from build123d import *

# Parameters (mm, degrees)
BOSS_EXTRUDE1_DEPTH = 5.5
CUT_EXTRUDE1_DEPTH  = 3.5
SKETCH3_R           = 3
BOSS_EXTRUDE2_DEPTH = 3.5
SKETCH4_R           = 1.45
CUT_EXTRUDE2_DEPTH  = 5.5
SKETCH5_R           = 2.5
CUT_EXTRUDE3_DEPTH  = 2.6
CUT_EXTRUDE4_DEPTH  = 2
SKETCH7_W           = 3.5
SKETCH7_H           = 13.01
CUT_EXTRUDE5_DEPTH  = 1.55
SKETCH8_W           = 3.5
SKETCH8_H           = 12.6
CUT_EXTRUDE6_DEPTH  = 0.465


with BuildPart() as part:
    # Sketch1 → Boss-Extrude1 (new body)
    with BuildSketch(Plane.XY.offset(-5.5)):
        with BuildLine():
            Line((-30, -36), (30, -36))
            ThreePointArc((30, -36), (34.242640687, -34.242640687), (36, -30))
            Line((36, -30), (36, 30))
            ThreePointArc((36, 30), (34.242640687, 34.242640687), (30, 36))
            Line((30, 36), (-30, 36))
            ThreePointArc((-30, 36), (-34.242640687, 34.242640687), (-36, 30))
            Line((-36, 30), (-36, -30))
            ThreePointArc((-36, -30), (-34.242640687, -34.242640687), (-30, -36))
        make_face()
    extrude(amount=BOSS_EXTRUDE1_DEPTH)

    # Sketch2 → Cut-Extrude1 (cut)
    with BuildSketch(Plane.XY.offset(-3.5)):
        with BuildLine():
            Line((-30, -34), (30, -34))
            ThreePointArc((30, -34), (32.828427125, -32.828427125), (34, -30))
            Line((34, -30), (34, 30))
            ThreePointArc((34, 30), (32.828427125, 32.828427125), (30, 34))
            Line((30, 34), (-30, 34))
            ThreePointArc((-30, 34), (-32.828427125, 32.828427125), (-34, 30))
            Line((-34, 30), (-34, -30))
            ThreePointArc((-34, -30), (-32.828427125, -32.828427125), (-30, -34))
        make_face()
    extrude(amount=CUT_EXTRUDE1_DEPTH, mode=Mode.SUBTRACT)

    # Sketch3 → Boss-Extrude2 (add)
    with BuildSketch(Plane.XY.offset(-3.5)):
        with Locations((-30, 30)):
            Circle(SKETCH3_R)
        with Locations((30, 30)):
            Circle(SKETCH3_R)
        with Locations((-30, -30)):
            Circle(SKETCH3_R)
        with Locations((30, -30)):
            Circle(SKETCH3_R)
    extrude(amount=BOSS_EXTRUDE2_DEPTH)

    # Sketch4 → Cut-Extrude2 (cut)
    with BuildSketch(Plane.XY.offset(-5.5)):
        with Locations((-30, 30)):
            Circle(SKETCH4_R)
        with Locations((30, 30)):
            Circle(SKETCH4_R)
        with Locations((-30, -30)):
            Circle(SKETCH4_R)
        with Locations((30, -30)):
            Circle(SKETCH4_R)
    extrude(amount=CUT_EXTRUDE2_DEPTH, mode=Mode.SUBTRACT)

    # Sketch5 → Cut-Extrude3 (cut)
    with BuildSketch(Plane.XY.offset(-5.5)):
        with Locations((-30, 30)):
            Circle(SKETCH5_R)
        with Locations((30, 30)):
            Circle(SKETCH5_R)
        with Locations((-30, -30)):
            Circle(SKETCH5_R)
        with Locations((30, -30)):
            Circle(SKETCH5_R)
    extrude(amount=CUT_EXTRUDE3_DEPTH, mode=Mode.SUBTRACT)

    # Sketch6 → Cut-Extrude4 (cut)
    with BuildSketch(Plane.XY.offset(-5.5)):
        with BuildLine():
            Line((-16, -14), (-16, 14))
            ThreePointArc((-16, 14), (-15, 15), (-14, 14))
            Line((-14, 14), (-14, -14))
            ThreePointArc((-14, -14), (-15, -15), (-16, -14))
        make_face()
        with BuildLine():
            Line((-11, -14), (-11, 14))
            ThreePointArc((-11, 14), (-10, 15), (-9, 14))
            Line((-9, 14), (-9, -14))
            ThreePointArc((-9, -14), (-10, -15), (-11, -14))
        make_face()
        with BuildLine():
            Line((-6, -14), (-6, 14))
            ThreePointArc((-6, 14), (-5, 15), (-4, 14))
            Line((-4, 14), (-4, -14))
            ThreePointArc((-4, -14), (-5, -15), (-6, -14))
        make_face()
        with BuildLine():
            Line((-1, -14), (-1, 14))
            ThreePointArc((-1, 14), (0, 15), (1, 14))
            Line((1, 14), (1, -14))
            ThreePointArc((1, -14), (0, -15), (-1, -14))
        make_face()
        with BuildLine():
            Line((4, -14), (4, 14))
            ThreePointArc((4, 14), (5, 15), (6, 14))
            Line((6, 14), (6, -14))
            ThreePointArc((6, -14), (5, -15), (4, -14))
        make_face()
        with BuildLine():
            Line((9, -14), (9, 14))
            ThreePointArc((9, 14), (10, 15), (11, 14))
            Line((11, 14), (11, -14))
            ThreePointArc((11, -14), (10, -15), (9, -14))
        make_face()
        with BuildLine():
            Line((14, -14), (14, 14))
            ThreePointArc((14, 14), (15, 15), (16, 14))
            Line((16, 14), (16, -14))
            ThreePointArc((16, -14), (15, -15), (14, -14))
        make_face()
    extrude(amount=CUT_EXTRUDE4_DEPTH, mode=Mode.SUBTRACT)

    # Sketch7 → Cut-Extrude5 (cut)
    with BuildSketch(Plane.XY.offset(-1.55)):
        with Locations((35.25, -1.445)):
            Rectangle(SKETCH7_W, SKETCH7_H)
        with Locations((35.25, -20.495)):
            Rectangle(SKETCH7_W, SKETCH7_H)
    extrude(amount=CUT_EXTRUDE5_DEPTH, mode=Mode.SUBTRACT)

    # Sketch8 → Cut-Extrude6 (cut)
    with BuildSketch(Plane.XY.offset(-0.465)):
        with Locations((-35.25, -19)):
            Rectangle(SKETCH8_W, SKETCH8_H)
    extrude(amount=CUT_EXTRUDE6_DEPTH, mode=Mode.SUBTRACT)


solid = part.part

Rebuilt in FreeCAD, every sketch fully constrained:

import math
import FreeCAD as App
import Part
import Sketcher
from FreeCAD import Vector
Q = App.Units.Quantity


def add_polygon(sketch, points):
    """Adds a closed chain of lines whose ends are joined by coincident constraints."""
    first, n = sketch.GeometryCount, len(points)
    for a, b in zip(points, points[1:] + points[:1]):
        sketch.addGeometry(Part.LineSegment(App.Vector(*a, 0), App.Vector(*b, 0)), False)
    for i in range(n):
        sketch.addConstraint(Sketcher.Constraint("Coincident", first + i, 2, first + (i + 1) % n, 1))

doc = App.newDocument("Part")
body = doc.addObject("PartDesign::Body", "Body")

sketch1 = body.newObject("Sketcher::SketchObject", "Sketch")
sketch1.AttachmentSupport = (doc.getObject("XY_Plane"), [""])
sketch1.MapMode = "FlatFace"
sketch1.AttachmentOffset = App.Placement(Vector(0, 0, -5.5), App.Rotation())
sketch1.addGeometry(Part.LineSegment(Vector(-30, -36, 0), Vector(30, -36, 0)), False)
sketch1.addGeometry(Part.ArcOfCircle(Part.Circle(Vector(30, -30, 0), Vector(0, 0, 1), 6), math.radians(-90), math.radians(0)), False)
sketch1.addGeometry(Part.LineSegment(Vector(36, -30, 0), Vector(36, 30, 0)), False)
sketch1.addGeometry(Part.ArcOfCircle(Part.Circle(Vector(30, 30, 0), Vector(0, 0, 1), 6), math.radians(0), math.radians(90)), False)
sketch1.addGeometry(Part.LineSegment(Vector(30, 36, 0), Vector(-30, 36, 0)), False)
sketch1.addGeometry(Part.ArcOfCircle(Part.Circle(Vector(-30, 30, 0), Vector(0, 0, 1), 6), math.radians(90), math.radians(180)), False)
sketch1.addGeometry(Part.LineSegment(Vector(-36, 30, 0), Vector(-36, -30, 0)), False)
sketch1.addGeometry(Part.ArcOfCircle(Part.Circle(Vector(-30, -30, 0), Vector(0, 0, 1), 6), math.radians(180), math.radians(270)), False)
sketch1.addConstraint(Sketcher.Constraint("Tangent", 0, 2, 1, 1))
sketch1.addConstraint(Sketcher.Constraint("Tangent", 1, 2, 2, 1))
sketch1.addConstraint(Sketcher.Constraint("Tangent", 2, 2, 3, 1))
sketch1.addConstraint(Sketcher.Constraint("Tangent", 3, 2, 4, 1))
sketch1.addConstraint(Sketcher.Constraint("Tangent", 4, 2, 5, 1))
sketch1.addConstraint(Sketcher.Constraint("Tangent", 5, 2, 6, 1))
sketch1.addConstraint(Sketcher.Constraint("Tangent", 6, 2, 7, 1))
sketch1.addConstraint(Sketcher.Constraint("Tangent", 7, 2, 0, 1))
sketch1.addConstraint(Sketcher.Constraint("Horizontal", 0))
sketch1.addConstraint(Sketcher.Constraint("Vertical", 2))
sketch1.addConstraint(Sketcher.Constraint("Horizontal", 4))
sketch1.addConstraint(Sketcher.Constraint("Vertical", 6))
sketch1.addConstraint(Sketcher.Constraint("Equal", 1, 3))
sketch1.addConstraint(Sketcher.Constraint("Equal", 3, 5))
sketch1.addConstraint(Sketcher.Constraint("Equal", 5, 7))
sketch1.addConstraint(Sketcher.Constraint("Symmetric", 1, 3, 5, 3, -1, 1))
sketch1.addConstraint(Sketcher.Constraint("Equal", 4, 2))
sketch1.addConstraint(Sketcher.Constraint("Radius", 1, Q("6 mm")))
sketch1.addConstraint(Sketcher.Constraint("DistanceX", 0, 1, 0, 2, Q("60 mm")))
pad1 = body.newObject("PartDesign::Pad", "Pad")
pad1.Profile = sketch1
pad1.Length = 5.5

sketch2 = body.newObject("Sketcher::SketchObject", "Sketch001")
sketch2.AttachmentSupport = (doc.getObject("XY_Plane"), [""])
sketch2.MapMode = "FlatFace"
sketch2.AttachmentOffset = App.Placement(Vector(0, 0, -3.5), App.Rotation())
sketch2.addGeometry(Part.LineSegment(Vector(-30, -34, 0), Vector(30, -34, 0)), False)
sketch2.addGeometry(Part.ArcOfCircle(Part.Circle(Vector(30, -30, 0), Vector(0, 0, 1), 4), math.radians(-90), math.radians(0)), False)
sketch2.addGeometry(Part.LineSegment(Vector(34, -30, 0), Vector(34, 30, 0)), False)
sketch2.addGeometry(Part.ArcOfCircle(Part.Circle(Vector(30, 30, 0), Vector(0, 0, 1), 4), math.radians(0), math.radians(90)), False)
sketch2.addGeometry(Part.LineSegment(Vector(30, 34, 0), Vector(-30, 34, 0)), False)
sketch2.addGeometry(Part.ArcOfCircle(Part.Circle(Vector(-30, 30, 0), Vector(0, 0, 1), 4), math.radians(90), math.radians(180)), False)
sketch2.addGeometry(Part.LineSegment(Vector(-34, 30, 0), Vector(-34, -30, 0)), False)
sketch2.addGeometry(Part.ArcOfCircle(Part.Circle(Vector(-30, -30, 0), Vector(0, 0, 1), 4), math.radians(180), math.radians(270)), False)
sketch2.addConstraint(Sketcher.Constraint("Tangent", 0, 2, 1, 1))
sketch2.addConstraint(Sketcher.Constraint("Tangent", 1, 2, 2, 1))
sketch2.addConstraint(Sketcher.Constraint("Tangent", 2, 2, 3, 1))
sketch2.addConstraint(Sketcher.Constraint("Tangent", 3, 2, 4, 1))
sketch2.addConstraint(Sketcher.Constraint("Tangent", 4, 2, 5, 1))
sketch2.addConstraint(Sketcher.Constraint("Tangent", 5, 2, 6, 1))
sketch2.addConstraint(Sketcher.Constraint("Tangent", 6, 2, 7, 1))
sketch2.addConstraint(Sketcher.Constraint("Tangent", 7, 2, 0, 1))
sketch2.addConstraint(Sketcher.Constraint("Horizontal", 0))
sketch2.addConstraint(Sketcher.Constraint("Vertical", 2))
sketch2.addConstraint(Sketcher.Constraint("Horizontal", 4))
sketch2.addConstraint(Sketcher.Constraint("Vertical", 6))
sketch2.addConstraint(Sketcher.Constraint("Equal", 1, 3))
sketch2.addConstraint(Sketcher.Constraint("Equal", 3, 5))
sketch2.addConstraint(Sketcher.Constraint("Equal", 5, 7))
sketch2.addConstraint(Sketcher.Constraint("Symmetric", 1, 3, 5, 3, -1, 1))
sketch2.addConstraint(Sketcher.Constraint("Equal", 4, 2))
sketch2.addConstraint(Sketcher.Constraint("Radius", 1, Q("4 mm")))
sketch2.addConstraint(Sketcher.Constraint("DistanceX", 0, 1, 0, 2, Q("60 mm")))
pocket1 = body.newObject("PartDesign::Pocket", "Pocket")
pocket1.Profile = sketch2
pocket1.Length = 3.5
pocket1.Reversed = True

sketch3 = body.newObject("Sketcher::SketchObject", "Sketch002")
sketch3.AttachmentSupport = (doc.getObject("XY_Plane"), [""])
sketch3.MapMode = "FlatFace"
sketch3.AttachmentOffset = App.Placement(Vector(0, 0, -3.5), App.Rotation())
sketch3.addGeometry(Part.Circle(Vector(-30, 30, 0), Vector(0, 0, 1), 3), False)
sketch3.addGeometry(Part.Circle(Vector(30, 30, 0), Vector(0, 0, 1), 3), False)
sketch3.addGeometry(Part.Circle(Vector(-30, -30, 0), Vector(0, 0, 1), 3), False)
sketch3.addGeometry(Part.Circle(Vector(30, -30, 0), Vector(0, 0, 1), 3), False)
sketch3.addConstraint(Sketcher.Constraint("Equal", 0, 1))
sketch3.addConstraint(Sketcher.Constraint("Equal", 1, 2))
sketch3.addConstraint(Sketcher.Constraint("Equal", 2, 3))
sketch3.addConstraint(Sketcher.Constraint("Symmetric", 1, 3, 2, 3, -1, 1))
sketch3.addConstraint(Sketcher.Constraint("Symmetric", 0, 3, 3, 3, -1, 1))
sketch3.addConstraint(Sketcher.Constraint("Symmetric", 0, 3, 1, 3, -2))
sketch3.addConstraint(Sketcher.Constraint("Diameter", 0, Q("6 mm")))
sketch3.addConstraint(Sketcher.Constraint("DistanceX", 0, 3, -1, 1, Q("30 mm")))
sketch3.addConstraint(Sketcher.Constraint("DistanceY", -1, 1, 0, 3, Q("30 mm")))
pad2 = body.newObject("PartDesign::Pad", "Pad001")
pad2.Profile = sketch3
pad2.Length = 3.5

sketch4 = body.newObject("Sketcher::SketchObject", "Sketch003")
sketch4.AttachmentSupport = (doc.getObject("XY_Plane"), [""])
sketch4.MapMode = "FlatFace"
sketch4.AttachmentOffset = App.Placement(Vector(0, 0, -5.5), App.Rotation())
sketch4.addGeometry(Part.Circle(Vector(-30, 30, 0), Vector(0, 0, 1), 1.4), False)
sketch4.addGeometry(Part.Circle(Vector(30, 30, 0), Vector(0, 0, 1), 1.4), False)
sketch4.addGeometry(Part.Circle(Vector(-30, -30, 0), Vector(0, 0, 1), 1.4), False)
sketch4.addGeometry(Part.Circle(Vector(30, -30, 0), Vector(0, 0, 1), 1.4), False)
sketch4.addConstraint(Sketcher.Constraint("Equal", 0, 1))
sketch4.addConstraint(Sketcher.Constraint("Equal", 1, 2))
sketch4.addConstraint(Sketcher.Constraint("Equal", 2, 3))
sketch4.addConstraint(Sketcher.Constraint("Symmetric", 1, 3, 2, 3, -1, 1))
sketch4.addConstraint(Sketcher.Constraint("Symmetric", 0, 3, 3, 3, -1, 1))
sketch4.addConstraint(Sketcher.Constraint("Symmetric", 0, 3, 1, 3, -2))
sketch4.addConstraint(Sketcher.Constraint("Diameter", 0, Q("2.9 mm")))
sketch4.addConstraint(Sketcher.Constraint("DistanceX", 0, 3, -1, 1, Q("30 mm")))
sketch4.addConstraint(Sketcher.Constraint("DistanceY", -1, 1, 0, 3, Q("30 mm")))
pocket2 = body.newObject("PartDesign::Pocket", "Pocket001")
pocket2.Profile = sketch4
pocket2.Length = 5.5
pocket2.Reversed = True

sketch5 = body.newObject("Sketcher::SketchObject", "Sketch004")
sketch5.AttachmentSupport = (doc.getObject("XY_Plane"), [""])
sketch5.MapMode = "FlatFace"
sketch5.AttachmentOffset = App.Placement(Vector(0, 0, -5.5), App.Rotation())
sketch5.addGeometry(Part.Circle(Vector(-30, 30, 0), Vector(0, 0, 1), 2.5), False)
sketch5.addGeometry(Part.Circle(Vector(30, 30, 0), Vector(0, 0, 1), 2.5), False)
sketch5.addGeometry(Part.Circle(Vector(-30, -30, 0), Vector(0, 0, 1), 2.5), False)
sketch5.addGeometry(Part.Circle(Vector(30, -30, 0), Vector(0, 0, 1), 2.5), False)
sketch5.addConstraint(Sketcher.Constraint("Equal", 0, 1))
sketch5.addConstraint(Sketcher.Constraint("Equal", 1, 2))
sketch5.addConstraint(Sketcher.Constraint("Equal", 2, 3))
sketch5.addConstraint(Sketcher.Constraint("Symmetric", 1, 3, 2, 3, -1, 1))
sketch5.addConstraint(Sketcher.Constraint("Symmetric", 0, 3, 3, 3, -1, 1))
sketch5.addConstraint(Sketcher.Constraint("Symmetric", 0, 3, 1, 3, -2))
sketch5.addConstraint(Sketcher.Constraint("Diameter", 0, Q("5 mm")))
sketch5.addConstraint(Sketcher.Constraint("DistanceX", 0, 3, -1, 1, Q("30 mm")))
sketch5.addConstraint(Sketcher.Constraint("DistanceY", -1, 1, 0, 3, Q("30 mm")))
pocket3 = body.newObject("PartDesign::Pocket", "Pocket002")
pocket3.Profile = sketch5
pocket3.Length = 2.6
pocket3.Reversed = True

sketch6 = body.newObject("Sketcher::SketchObject", "Sketch005")
sketch6.AttachmentSupport = (doc.getObject("XY_Plane"), [""])
sketch6.MapMode = "FlatFace"
sketch6.AttachmentOffset = App.Placement(Vector(0, 0, -5.5), App.Rotation())
sketch6.addGeometry(Part.LineSegment(Vector(-16, 14, 0), Vector(-16, -14, 0)), False)
sketch6.addGeometry(Part.ArcOfCircle(Part.Circle(Vector(-15, -14, 0), Vector(0, 0, 1), 1), math.radians(180), math.radians(360)), False)
sketch6.addGeometry(Part.LineSegment(Vector(-14, -14, 0), Vector(-14, 14, 0)), False)
sketch6.addGeometry(Part.ArcOfCircle(Part.Circle(Vector(-15, 14, 0), Vector(0, 0, 1), 1), math.radians(0), math.radians(180)), False)
sketch6.addGeometry(Part.LineSegment(Vector(-11, 14, 0), Vector(-11, -14, 0)), False)
sketch6.addGeometry(Part.ArcOfCircle(Part.Circle(Vector(-10, -14, 0), Vector(0, 0, 1), 1), math.radians(180), math.radians(360)), False)
sketch6.addGeometry(Part.LineSegment(Vector(-9, -14, 0), Vector(-9, 14, 0)), False)
sketch6.addGeometry(Part.ArcOfCircle(Part.Circle(Vector(-10, 14, 0), Vector(0, 0, 1), 1), math.radians(0), math.radians(180)), False)
sketch6.addGeometry(Part.LineSegment(Vector(-6, 14, 0), Vector(-6, -14, 0)), False)
sketch6.addGeometry(Part.ArcOfCircle(Part.Circle(Vector(-5, -14, 0), Vector(0, 0, 1), 1), math.radians(180), math.radians(360)), False)
sketch6.addGeometry(Part.LineSegment(Vector(-4, -14, 0), Vector(-4, 14, 0)), False)
sketch6.addGeometry(Part.ArcOfCircle(Part.Circle(Vector(-5, 14, 0), Vector(0, 0, 1), 1), math.radians(0), math.radians(180)), False)
sketch6.addGeometry(Part.LineSegment(Vector(-1, 14, 0), Vector(-1, -14, 0)), False)
sketch6.addGeometry(Part.ArcOfCircle(Part.Circle(Vector(0, -14, 0), Vector(0, 0, 1), 1), math.radians(180), math.radians(360)), False)
sketch6.addGeometry(Part.LineSegment(Vector(1, -14, 0), Vector(1, 14, 0)), False)
sketch6.addGeometry(Part.ArcOfCircle(Part.Circle(Vector(0, 14, 0), Vector(0, 0, 1), 1), math.radians(0), math.radians(180)), False)
sketch6.addGeometry(Part.LineSegment(Vector(4, 14, 0), Vector(4, -14, 0)), False)
sketch6.addGeometry(Part.ArcOfCircle(Part.Circle(Vector(5, -14, 0), Vector(0, 0, 1), 1), math.radians(180), math.radians(360)), False)
sketch6.addGeometry(Part.LineSegment(Vector(6, -14, 0), Vector(6, 14, 0)), False)
sketch6.addGeometry(Part.ArcOfCircle(Part.Circle(Vector(5, 14, 0), Vector(0, 0, 1), 1), math.radians(0), math.radians(180)), False)
sketch6.addGeometry(Part.LineSegment(Vector(9, 14, 0), Vector(9, -14, 0)), False)
sketch6.addGeometry(Part.ArcOfCircle(Part.Circle(Vector(10, -14, 0), Vector(0, 0, 1), 1), math.radians(180), math.radians(360)), False)
sketch6.addGeometry(Part.LineSegment(Vector(11, -14, 0), Vector(11, 14, 0)), False)
sketch6.addGeometry(Part.ArcOfCircle(Part.Circle(Vector(10, 14, 0), Vector(0, 0, 1), 1), math.radians(0), math.radians(180)), False)
sketch6.addGeometry(Part.LineSegment(Vector(14, 14, 0), Vector(14, -14, 0)), False)
sketch6.addGeometry(Part.ArcOfCircle(Part.Circle(Vector(15, -14, 0), Vector(0, 0, 1), 1), math.radians(180), math.radians(360)), False)
sketch6.addGeometry(Part.LineSegment(Vector(16, -14, 0), Vector(16, 14, 0)), False)
sketch6.addGeometry(Part.ArcOfCircle(Part.Circle(Vector(15, 14, 0), Vector(0, 0, 1), 1), math.radians(0), math.radians(180)), False)
sketch6.addConstraint(Sketcher.Constraint("Tangent", 0, 2, 1, 1))
sketch6.addConstraint(Sketcher.Constraint("Tangent", 1, 2, 2, 1))
sketch6.addConstraint(Sketcher.Constraint("Tangent", 2, 2, 3, 1))
sketch6.addConstraint(Sketcher.Constraint("Tangent", 3, 2, 0, 1))
sketch6.addConstraint(Sketcher.Constraint("Tangent", 4, 2, 5, 1))
sketch6.addConstraint(Sketcher.Constraint("Tangent", 5, 2, 6, 1))
sketch6.addConstraint(Sketcher.Constraint("Tangent", 6, 2, 7, 1))
sketch6.addConstraint(Sketcher.Constraint("Tangent", 7, 2, 4, 1))
sketch6.addConstraint(Sketcher.Constraint("Tangent", 8, 2, 9, 1))
sketch6.addConstraint(Sketcher.Constraint("Tangent", 9, 2, 10, 1))
sketch6.addConstraint(Sketcher.Constraint("Tangent", 10, 2, 11, 1))
sketch6.addConstraint(Sketcher.Constraint("Tangent", 11, 2, 8, 1))
sketch6.addConstraint(Sketcher.Constraint("Tangent", 12, 2, 13, 1))
sketch6.addConstraint(Sketcher.Constraint("Tangent", 13, 2, 14, 1))
sketch6.addConstraint(Sketcher.Constraint("Tangent", 14, 2, 15, 1))
sketch6.addConstraint(Sketcher.Constraint("Tangent", 15, 2, 12, 1))
sketch6.addConstraint(Sketcher.Constraint("Tangent", 16, 2, 17, 1))
sketch6.addConstraint(Sketcher.Constraint("Tangent", 17, 2, 18, 1))
sketch6.addConstraint(Sketcher.Constraint("Tangent", 18, 2, 19, 1))
sketch6.addConstraint(Sketcher.Constraint("Tangent", 19, 2, 16, 1))
sketch6.addConstraint(Sketcher.Constraint("Tangent", 20, 2, 21, 1))
sketch6.addConstraint(Sketcher.Constraint("Tangent", 21, 2, 22, 1))
sketch6.addConstraint(Sketcher.Constraint("Tangent", 22, 2, 23, 1))
sketch6.addConstraint(Sketcher.Constraint("Tangent", 23, 2, 20, 1))
sketch6.addConstraint(Sketcher.Constraint("Tangent", 24, 2, 25, 1))
sketch6.addConstraint(Sketcher.Constraint("Tangent", 25, 2, 26, 1))
sketch6.addConstraint(Sketcher.Constraint("Tangent", 26, 2, 27, 1))
sketch6.addConstraint(Sketcher.Constraint("Tangent", 27, 2, 24, 1))
sketch6.addConstraint(Sketcher.Constraint("Vertical", 0))
sketch6.addConstraint(Sketcher.Constraint("Vertical", 2))
sketch6.addConstraint(Sketcher.Constraint("Vertical", 4))
sketch6.addConstraint(Sketcher.Constraint("Vertical", 6))
sketch6.addConstraint(Sketcher.Constraint("Vertical", 8))
sketch6.addConstraint(Sketcher.Constraint("Vertical", 10))
sketch6.addConstraint(Sketcher.Constraint("Vertical", 12))
sketch6.addConstraint(Sketcher.Constraint("Vertical", 14))
sketch6.addConstraint(Sketcher.Constraint("Vertical", 16))
sketch6.addConstraint(Sketcher.Constraint("Vertical", 18))
sketch6.addConstraint(Sketcher.Constraint("Vertical", 20))
sketch6.addConstraint(Sketcher.Constraint("Vertical", 22))
sketch6.addConstraint(Sketcher.Constraint("Vertical", 24))
sketch6.addConstraint(Sketcher.Constraint("Vertical", 26))
sketch6.addConstraint(Sketcher.Constraint("Equal", 3, 5))
sketch6.addConstraint(Sketcher.Constraint("Equal", 7, 9))
sketch6.addConstraint(Sketcher.Constraint("Equal", 11, 13))
sketch6.addConstraint(Sketcher.Constraint("Equal", 15, 17))
sketch6.addConstraint(Sketcher.Constraint("Equal", 19, 21))
sketch6.addConstraint(Sketcher.Constraint("Equal", 23, 25))
sketch6.addConstraint(Sketcher.Constraint("Symmetric", 13, 3, 15, 3, -1, 1))
sketch6.addConstraint(Sketcher.Constraint("Symmetric", 11, 3, 17, 3, -1, 1))
sketch6.addConstraint(Sketcher.Constraint("Symmetric", 7, 3, 21, 3, -1, 1))
sketch6.addConstraint(Sketcher.Constraint("Symmetric", 3, 3, 25, 3, -1, 1))
sketch6.addConstraint(Sketcher.Constraint("Horizontal", 1, 3, 5, 3))
sketch6.addConstraint(Sketcher.Constraint("Horizontal", 3, 3, 7, 3))
sketch6.addConstraint(Sketcher.Constraint("Horizontal", 5, 3, 9, 3))
sketch6.addConstraint(Sketcher.Constraint("Horizontal", 7, 3, 11, 3))
sketch6.addConstraint(Sketcher.Constraint("Horizontal", 9, 3, 13, 3))
sketch6.addConstraint(Sketcher.Constraint("Horizontal", 11, 3, 15, 3))
sketch6.addConstraint(Sketcher.Constraint("Horizontal", 15, 3, 19, 3))
sketch6.addConstraint(Sketcher.Constraint("Horizontal", 19, 3, 23, 3))
sketch6.addConstraint(Sketcher.Constraint("Horizontal", 23, 3, 27, 3))
sketch6.addConstraint(Sketcher.Constraint("Radius", 1, Q("1 mm")))
sketch6.addConstraint(Sketcher.Constraint("DistanceY", 0, 2, 0, 1, Q("28 mm")))
sketch6.addConstraint(Sketcher.Constraint("DistanceX", 1, 3, -1, 1, Q("15 mm")))
sketch6.addConstraint(Sketcher.Constraint("DistanceX", 5, 3, -1, 1, Q("10 mm")))
sketch6.addConstraint(Sketcher.Constraint("DistanceX", 9, 3, -1, 1, Q("5 mm")))
pocket4 = body.newObject("PartDesign::Pocket", "Pocket003")
pocket4.Profile = sketch6
pocket4.Length = 2
pocket4.Reversed = True

sketch7 = body.newObject("Sketcher::SketchObject", "Sketch006")
sketch7.AttachmentSupport = (doc.getObject("XY_Plane"), [""])
sketch7.MapMode = "FlatFace"
sketch7.AttachmentOffset = App.Placement(Vector(0, 0, -1.55), App.Rotation())
add_polygon(sketch7, [(33.5, 5.1), (33.5, -8), (37, -8), (37, 5.1)])
add_polygon(sketch7, [(33.5, -14), (33.5, -27), (37, -27), (37, -14)])
sketch7.addConstraint(Sketcher.Constraint("Vertical", 0))
sketch7.addConstraint(Sketcher.Constraint("Horizontal", 1))
sketch7.addConstraint(Sketcher.Constraint("Vertical", 2))
sketch7.addConstraint(Sketcher.Constraint("Horizontal", 3))
sketch7.addConstraint(Sketcher.Constraint("Vertical", 4))
sketch7.addConstraint(Sketcher.Constraint("Horizontal", 5))
sketch7.addConstraint(Sketcher.Constraint("Vertical", 6))
sketch7.addConstraint(Sketcher.Constraint("Horizontal", 7))
sketch7.addConstraint(Sketcher.Constraint("Vertical", 3, 2, 4, 2))
sketch7.addConstraint(Sketcher.Constraint("Vertical", 2, 2, 5, 2))
sketch7.addConstraint(Sketcher.Constraint("Equal", 2, 4))
sketch7.addConstraint(Sketcher.Constraint("DistanceX", 1, 1, 1, 2, Q("3.5 mm")))
sketch7.addConstraint(Sketcher.Constraint("DistanceX", -1, 1, 1, 2, Q("37 mm")))
sketch7.addConstraint(Sketcher.Constraint("DistanceY", 4, 2, -1, 1, Q("27 mm")))
sketch7.addConstraint(Sketcher.Constraint("DistanceY", 0, 2, 0, 1, Q("13.01 mm")))
sketch7.addConstraint(Sketcher.Constraint("DistanceY", 0, 2, -1, 1, Q("7.95 mm")))
pocket5 = body.newObject("PartDesign::Pocket", "Pocket004")
pocket5.Profile = sketch7
pocket5.Length = 1.55
pocket5.Reversed = True

sketch8 = body.newObject("Sketcher::SketchObject", "Sketch007")
sketch8.AttachmentSupport = (doc.getObject("XY_Plane"), [""])
sketch8.MapMode = "FlatFace"
sketch8.AttachmentOffset = App.Placement(Vector(0, 0, -0.465), App.Rotation())
add_polygon(sketch8, [(-37, -12.7), (-37, -25.3), (-33.5, -25.3), (-33.5, -12.7)])
sketch8.addConstraint(Sketcher.Constraint("Vertical", 0))
sketch8.addConstraint(Sketcher.Constraint("Horizontal", 1))
sketch8.addConstraint(Sketcher.Constraint("Vertical", 2))
sketch8.addConstraint(Sketcher.Constraint("Horizontal", 3))
sketch8.addConstraint(Sketcher.Constraint("DistanceX", 1, 1, 1, 2, Q("3.5 mm")))
sketch8.addConstraint(Sketcher.Constraint("DistanceY", 0, 2, 0, 1, Q("12.6 mm")))
sketch8.addConstraint(Sketcher.Constraint("DistanceX", 0, 2, -1, 1, Q("37 mm")))
sketch8.addConstraint(Sketcher.Constraint("DistanceY", 0, 2, -1, 1, Q("25.3 mm")))
pocket6 = body.newObject("PartDesign::Pocket", "Pocket005")
pocket6.Profile = sketch8
pocket6.Length = 0.465
pocket6.Reversed = True

doc.recompute()
